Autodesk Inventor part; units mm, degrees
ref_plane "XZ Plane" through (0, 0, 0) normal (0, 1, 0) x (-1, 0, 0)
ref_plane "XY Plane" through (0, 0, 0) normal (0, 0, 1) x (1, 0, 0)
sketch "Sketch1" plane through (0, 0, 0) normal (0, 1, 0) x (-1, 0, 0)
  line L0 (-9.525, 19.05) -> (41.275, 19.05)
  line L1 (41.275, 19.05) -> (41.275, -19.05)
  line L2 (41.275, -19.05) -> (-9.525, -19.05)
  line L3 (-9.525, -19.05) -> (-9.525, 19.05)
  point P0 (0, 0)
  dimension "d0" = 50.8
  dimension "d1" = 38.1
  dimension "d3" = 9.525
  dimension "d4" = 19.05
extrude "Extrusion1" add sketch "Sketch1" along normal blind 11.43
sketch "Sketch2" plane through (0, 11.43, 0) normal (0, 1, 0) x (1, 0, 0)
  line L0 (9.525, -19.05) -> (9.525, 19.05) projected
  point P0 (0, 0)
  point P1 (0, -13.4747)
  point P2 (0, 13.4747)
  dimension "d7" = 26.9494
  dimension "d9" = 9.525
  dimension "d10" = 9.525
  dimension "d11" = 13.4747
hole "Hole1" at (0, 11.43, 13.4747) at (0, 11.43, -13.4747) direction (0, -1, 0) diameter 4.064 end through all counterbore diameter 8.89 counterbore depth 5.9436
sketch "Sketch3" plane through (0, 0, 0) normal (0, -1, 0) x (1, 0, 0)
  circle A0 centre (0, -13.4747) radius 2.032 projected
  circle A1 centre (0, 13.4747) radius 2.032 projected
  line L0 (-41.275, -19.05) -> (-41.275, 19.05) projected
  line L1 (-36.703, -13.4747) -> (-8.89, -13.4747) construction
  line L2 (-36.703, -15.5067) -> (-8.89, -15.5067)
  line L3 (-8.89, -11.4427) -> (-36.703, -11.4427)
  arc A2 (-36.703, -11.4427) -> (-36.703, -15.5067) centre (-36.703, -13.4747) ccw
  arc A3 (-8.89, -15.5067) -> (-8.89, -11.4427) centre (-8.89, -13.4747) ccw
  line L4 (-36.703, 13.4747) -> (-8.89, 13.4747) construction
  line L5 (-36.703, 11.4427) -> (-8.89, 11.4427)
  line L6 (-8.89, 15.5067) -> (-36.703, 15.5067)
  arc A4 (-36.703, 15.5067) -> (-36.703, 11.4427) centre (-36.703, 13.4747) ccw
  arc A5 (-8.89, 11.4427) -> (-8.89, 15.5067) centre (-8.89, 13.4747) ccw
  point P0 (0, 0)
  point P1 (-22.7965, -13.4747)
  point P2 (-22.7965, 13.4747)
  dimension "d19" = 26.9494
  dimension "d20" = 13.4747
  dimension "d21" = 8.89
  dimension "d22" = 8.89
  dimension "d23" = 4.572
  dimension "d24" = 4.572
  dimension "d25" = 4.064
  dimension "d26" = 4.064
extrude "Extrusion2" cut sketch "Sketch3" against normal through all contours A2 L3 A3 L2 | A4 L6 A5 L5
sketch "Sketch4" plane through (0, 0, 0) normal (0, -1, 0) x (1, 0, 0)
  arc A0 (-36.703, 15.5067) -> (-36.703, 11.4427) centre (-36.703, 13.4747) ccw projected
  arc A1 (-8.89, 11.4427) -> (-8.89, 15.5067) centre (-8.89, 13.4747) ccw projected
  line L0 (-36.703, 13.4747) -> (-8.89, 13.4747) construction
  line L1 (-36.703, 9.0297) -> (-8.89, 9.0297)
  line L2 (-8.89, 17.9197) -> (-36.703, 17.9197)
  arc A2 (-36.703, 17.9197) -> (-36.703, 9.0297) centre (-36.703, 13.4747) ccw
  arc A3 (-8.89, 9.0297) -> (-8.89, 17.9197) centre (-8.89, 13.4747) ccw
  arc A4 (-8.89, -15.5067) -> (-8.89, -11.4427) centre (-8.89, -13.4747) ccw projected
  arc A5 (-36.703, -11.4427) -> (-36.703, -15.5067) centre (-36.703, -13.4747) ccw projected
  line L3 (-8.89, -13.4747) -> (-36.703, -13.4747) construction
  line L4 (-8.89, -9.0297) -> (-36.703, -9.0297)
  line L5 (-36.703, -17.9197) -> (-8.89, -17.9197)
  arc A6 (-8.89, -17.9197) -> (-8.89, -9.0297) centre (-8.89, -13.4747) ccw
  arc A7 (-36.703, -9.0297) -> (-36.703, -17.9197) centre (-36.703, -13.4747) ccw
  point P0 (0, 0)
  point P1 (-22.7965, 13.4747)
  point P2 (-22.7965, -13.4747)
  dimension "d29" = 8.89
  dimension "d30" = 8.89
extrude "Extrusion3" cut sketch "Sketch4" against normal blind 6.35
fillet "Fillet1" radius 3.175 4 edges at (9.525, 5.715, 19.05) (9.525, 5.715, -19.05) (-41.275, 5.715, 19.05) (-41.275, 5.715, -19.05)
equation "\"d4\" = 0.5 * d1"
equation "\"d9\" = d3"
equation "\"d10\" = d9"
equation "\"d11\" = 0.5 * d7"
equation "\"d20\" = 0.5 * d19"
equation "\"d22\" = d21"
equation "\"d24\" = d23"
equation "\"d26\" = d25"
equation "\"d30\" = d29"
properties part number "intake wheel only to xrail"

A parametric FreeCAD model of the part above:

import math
import FreeCAD as App
import Part
import Sketcher
Q = App.Units.Quantity


def edges_at(feature, points):
    """Names of the edges that pass closest to the given points."""
    edges = feature.Shape.Edges
    near = lambda p: min(range(len(edges)), key=lambda i: edges[i].distToShape(Part.Vertex(*p))[0])
    return sorted({f"Edge{near(p) + 1}" for p in points})

doc = App.newDocument("Part")
body = doc.addObject("PartDesign::Body", "Body")

sketch1 = doc.addObject("Sketcher::SketchObject", "Sketch")
body.addObject(sketch1)
sketch1.AttachmentSupport = (doc.XZ_Plane, [""])
sketch1.MapMode = "FlatFace"
sketch1.addGeometry(Part.LineSegment(App.Vector(-41, 19, 0), App.Vector(10, 19, 0)), False)
sketch1.addGeometry(Part.LineSegment(App.Vector(10, 19, 0), App.Vector(10, -19, 0)), False)
sketch1.addGeometry(Part.LineSegment(App.Vector(10, -19, 0), App.Vector(-41, -19, 0)), False)
sketch1.addGeometry(Part.LineSegment(App.Vector(-41, -19, 0), App.Vector(-41, 19, 0)), False)
sketch1.addConstraint(Sketcher.Constraint("Coincident", 0, 2, 1, 1))
sketch1.addConstraint(Sketcher.Constraint("Coincident", 1, 2, 2, 1))
sketch1.addConstraint(Sketcher.Constraint("Coincident", 2, 2, 3, 1))
sketch1.addConstraint(Sketcher.Constraint("Coincident", 3, 2, 0, 1))
sketch1.addConstraint(Sketcher.Constraint("Horizontal", 0))
sketch1.addConstraint(Sketcher.Constraint("Vertical", 1))
sketch1.addConstraint(Sketcher.Constraint("Horizontal", 2))
sketch1.addConstraint(Sketcher.Constraint("Vertical", 3))
sketch1.addConstraint(Sketcher.Constraint("DistanceX", 0, 1, 0, 2, Q("2 in")))
sketch1.addConstraint(Sketcher.Constraint("DistanceY", 1, 2, 1, 1, Q("1.5 in")))
sketch1.addConstraint(Sketcher.Constraint("DistanceY", -1, 1, 0, 2, Q("0.75 in")))
sketch1.addConstraint(Sketcher.Constraint("DistanceX", -1, 1, 0, 2, Q("0.375 in")))
pad1 = doc.addObject("PartDesign::Pad", "Pad")
body.addObject(pad1)
pad1.Profile = sketch1
pad1.Length = Q("0.45 in")
pad1.Reversed = True

sketch2 = doc.addObject("Sketcher::SketchObject", "Sketch001")
body.addObject(sketch2)
sketch2.AttachmentSupport = (doc.XZ_Plane, [""])
sketch2.MapMode = "FlatFace"
sketch2.AttachmentOffset = App.Placement(App.Vector(0, 0, -0.45 * 25.4), App.Rotation())
sketch2.addGeometry(Part.Circle(App.Vector(0, 13.5, 0), App.Vector(0, 0, 1), 2), False)
sketch2.addGeometry(Part.Circle(App.Vector(0, -13.5, 0), App.Vector(0, 0, 1), 2), False)
sketch2.addConstraint(Sketcher.Constraint("Equal", 0, 1))
sketch2.addConstraint(Sketcher.Constraint("Symmetric", 0, 3, 1, 3, -1, 1))
sketch2.addConstraint(Sketcher.Constraint("PointOnObject", 0, 3, -2))
sketch2.addConstraint(Sketcher.Constraint("Diameter", 0, Q("0.16 in")))
sketch2.addConstraint(Sketcher.Constraint("DistanceY", 1, 3, 0, 3, Q("1.061 in")))
doc.recompute()
hole = doc.addObject("PartDesign::Hole", "Hole")
body.addObject(hole)
hole.Profile = sketch2
hole.ThreadType = "None"
hole.Diameter = Q("0.16 in")
hole.DepthType = "ThroughAll"
hole.HoleCutType = "Counterbore"
hole.HoleCutDiameter = Q("0.35 in")
hole.HoleCutDepth = Q("0.234 in")
hole.Reversed = True

sketch3 = doc.addObject("Sketcher::SketchObject", "Sketch002")
body.addObject(sketch3)
sketch3.AttachmentSupport = (doc.XZ_Plane, [""])
sketch3.MapMode = "FlatFace"
sketch3.addGeometry(Part.ArcOfCircle(Part.Circle(App.Vector(-36.7, -13.5, 0), App.Vector(0, 0, 1), 2), math.radians(90), math.radians(270)), False)
sketch3.addGeometry(Part.LineSegment(App.Vector(-36.7, -15.5, 0), App.Vector(-8.9, -15.5, 0)), False)
sketch3.addGeometry(Part.ArcOfCircle(Part.Circle(App.Vector(-8.9, -13.5, 0), App.Vector(0, 0, 1), 2), math.radians(-90), math.radians(90)), False)
sketch3.addGeometry(Part.LineSegment(App.Vector(-8.9, -11.4, 0), App.Vector(-36.7, -11.4, 0)), False)
sketch3.addGeometry(Part.ArcOfCircle(Part.Circle(App.Vector(-36.7, 13.5, 0), App.Vector(0, 0, 1), 2), math.radians(90), math.radians(270)), False)
sketch3.addGeometry(Part.LineSegment(App.Vector(-36.7, 11.4, 0), App.Vector(-8.9, 11.4, 0)), False)
sketch3.addGeometry(Part.ArcOfCircle(Part.Circle(App.Vector(-8.9, 13.5, 0), App.Vector(0, 0, 1), 2), math.radians(-90), math.radians(90)), False)
sketch3.addGeometry(Part.LineSegment(App.Vector(-8.9, 15.5, 0), App.Vector(-36.7, 15.5, 0)), False)
sketch3.addConstraint(Sketcher.Constraint("Tangent", 0, 2, 1, 1))
sketch3.addConstraint(Sketcher.Constraint("Tangent", 1, 2, 2, 1))
sketch3.addConstraint(Sketcher.Constraint("Tangent", 2, 2, 3, 1))
sketch3.addConstraint(Sketcher.Constraint("Tangent", 3, 2, 0, 1))
sketch3.addConstraint(Sketcher.Constraint("Tangent", 4, 2, 5, 1))
sketch3.addConstraint(Sketcher.Constraint("Tangent", 5, 2, 6, 1))
sketch3.addConstraint(Sketcher.Constraint("Tangent", 6, 2, 7, 1))
sketch3.addConstraint(Sketcher.Constraint("Tangent", 7, 2, 4, 1))
sketch3.addConstraint(Sketcher.Constraint("Horizontal", 1))
sketch3.addConstraint(Sketcher.Constraint("Horizontal", 3))
sketch3.addConstraint(Sketcher.Constraint("Horizontal", 5))
sketch3.addConstraint(Sketcher.Constraint("Horizontal", 7))
sketch3.addConstraint(Sketcher.Constraint("Equal", 2, 4))
sketch3.addConstraint(Sketcher.Constraint("Symmetric", 0, 3, 4, 3, -1))
sketch3.addConstraint(Sketcher.Constraint("Vertical", 2, 3, 6, 3))
sketch3.addConstraint(Sketcher.Constraint("Radius", 0, Q("0.08 in")))
sketch3.addConstraint(Sketcher.Constraint("DistanceX", 2, 3, -1, 1, Q("0.35 in")))
sketch3.addConstraint(Sketcher.Constraint("DistanceY", 0, 3, 4, 3, Q("1.061 in")))
sketch3.addConstraint(Sketcher.Constraint("DistanceX", 1, 1, 1, 2, Q("1.095 in")))
pocket1 = doc.addObject("PartDesign::Pocket", "Pocket")
body.addObject(pocket1)
pocket1.Profile = sketch3
pocket1.Type = "ThroughAll"

sketch4 = doc.addObject("Sketcher::SketchObject", "Sketch003")
body.addObject(sketch4)
sketch4.AttachmentSupport = (doc.XZ_Plane, [""])
sketch4.MapMode = "FlatFace"
sketch4.addGeometry(Part.ArcOfCircle(Part.Circle(App.Vector(-36.7, 13.5, 0), App.Vector(0, 0, 1), 4.4), math.radians(90), math.radians(270)), False)
sketch4.addGeometry(Part.LineSegment(App.Vector(-36.7, 9, 0), App.Vector(-8.9, 9, 0)), False)
sketch4.addGeometry(Part.ArcOfCircle(Part.Circle(App.Vector(-8.9, 13.5, 0), App.Vector(0, 0, 1), 4.4), math.radians(-90), math.radians(90)), False)
sketch4.addGeometry(Part.LineSegment(App.Vector(-8.9, 17.9, 0), App.Vector(-36.7, 17.9, 0)), False)
sketch4.addGeometry(Part.ArcOfCircle(Part.Circle(App.Vector(-8.9, -13.5, 0), App.Vector(0, 0, 1), 4.4), math.radians(-90), math.radians(90)), False)
sketch4.addGeometry(Part.LineSegment(App.Vector(-8.9, -9, 0), App.Vector(-36.7, -9, 0)), False)
sketch4.addGeometry(Part.ArcOfCircle(Part.Circle(App.Vector(-36.7, -13.5, 0), App.Vector(0, 0, 1), 4.4), math.radians(90), math.radians(270)), False)
sketch4.addGeometry(Part.LineSegment(App.Vector(-36.7, -17.9, 0), App.Vector(-8.9, -17.9, 0)), False)
sketch4.addConstraint(Sketcher.Constraint("Tangent", 0, 2, 1, 1))
sketch4.addConstraint(Sketcher.Constraint("Tangent", 1, 2, 2, 1))
sketch4.addConstraint(Sketcher.Constraint("Tangent", 2, 2, 3, 1))
sketch4.addConstraint(Sketcher.Constraint("Tangent", 3, 2, 0, 1))
sketch4.addConstraint(Sketcher.Constraint("Tangent", 4, 2, 5, 1))
sketch4.addConstraint(Sketcher.Constraint("Tangent", 5, 2, 6, 1))
sketch4.addConstraint(Sketcher.Constraint("Tangent", 6, 2, 7, 1))
sketch4.addConstraint(Sketcher.Constraint("Tangent", 7, 2, 4, 1))
sketch4.addConstraint(Sketcher.Constraint("Horizontal", 1))
sketch4.addConstraint(Sketcher.Constraint("Horizontal", 3))
sketch4.addConstraint(Sketcher.Constraint("Horizontal", 5))
sketch4.addConstraint(Sketcher.Constraint("Horizontal", 7))
sketch4.addConstraint(Sketcher.Constraint("Equal", 2, 4))
sketch4.addConstraint(Sketcher.Constraint("Symmetric", 2, 3, 4, 3, -1))
sketch4.addConstraint(Sketcher.Constraint("Vertical", 0, 3, 6, 3))
sketch4.addConstraint(Sketcher.Constraint("Radius", 0, Q("0.175 in")))
sketch4.addConstraint(Sketcher.Constraint("DistanceX", 2, 3, -1, 1, Q("0.35 in")))
sketch4.addConstraint(Sketcher.Constraint("DistanceX", 1, 1, 1, 2, Q("1.095 in")))
sketch4.addConstraint(Sketcher.Constraint("DistanceY", 4, 3, 2, 3, Q("1.061 in")))
pocket2 = doc.addObject("PartDesign::Pocket", "Pocket001")
body.addObject(pocket2)
pocket2.Profile = sketch4
pocket2.Length = Q("0.25 in")
doc.recompute()

fillet = doc.addObject("PartDesign::Fillet", "Fillet")
body.addObject(fillet)
fillet.Base = (pocket2, edges_at(pocket2, [
    (9.525, 5.715, 19.05),
    (9.525, 5.715, -19.05),
    (-41.275, 5.715, 19.05),
    (-41.275, 5.715, -19.05),
]))
fillet.Radius = Q("0.125 in")

doc.recompute()
